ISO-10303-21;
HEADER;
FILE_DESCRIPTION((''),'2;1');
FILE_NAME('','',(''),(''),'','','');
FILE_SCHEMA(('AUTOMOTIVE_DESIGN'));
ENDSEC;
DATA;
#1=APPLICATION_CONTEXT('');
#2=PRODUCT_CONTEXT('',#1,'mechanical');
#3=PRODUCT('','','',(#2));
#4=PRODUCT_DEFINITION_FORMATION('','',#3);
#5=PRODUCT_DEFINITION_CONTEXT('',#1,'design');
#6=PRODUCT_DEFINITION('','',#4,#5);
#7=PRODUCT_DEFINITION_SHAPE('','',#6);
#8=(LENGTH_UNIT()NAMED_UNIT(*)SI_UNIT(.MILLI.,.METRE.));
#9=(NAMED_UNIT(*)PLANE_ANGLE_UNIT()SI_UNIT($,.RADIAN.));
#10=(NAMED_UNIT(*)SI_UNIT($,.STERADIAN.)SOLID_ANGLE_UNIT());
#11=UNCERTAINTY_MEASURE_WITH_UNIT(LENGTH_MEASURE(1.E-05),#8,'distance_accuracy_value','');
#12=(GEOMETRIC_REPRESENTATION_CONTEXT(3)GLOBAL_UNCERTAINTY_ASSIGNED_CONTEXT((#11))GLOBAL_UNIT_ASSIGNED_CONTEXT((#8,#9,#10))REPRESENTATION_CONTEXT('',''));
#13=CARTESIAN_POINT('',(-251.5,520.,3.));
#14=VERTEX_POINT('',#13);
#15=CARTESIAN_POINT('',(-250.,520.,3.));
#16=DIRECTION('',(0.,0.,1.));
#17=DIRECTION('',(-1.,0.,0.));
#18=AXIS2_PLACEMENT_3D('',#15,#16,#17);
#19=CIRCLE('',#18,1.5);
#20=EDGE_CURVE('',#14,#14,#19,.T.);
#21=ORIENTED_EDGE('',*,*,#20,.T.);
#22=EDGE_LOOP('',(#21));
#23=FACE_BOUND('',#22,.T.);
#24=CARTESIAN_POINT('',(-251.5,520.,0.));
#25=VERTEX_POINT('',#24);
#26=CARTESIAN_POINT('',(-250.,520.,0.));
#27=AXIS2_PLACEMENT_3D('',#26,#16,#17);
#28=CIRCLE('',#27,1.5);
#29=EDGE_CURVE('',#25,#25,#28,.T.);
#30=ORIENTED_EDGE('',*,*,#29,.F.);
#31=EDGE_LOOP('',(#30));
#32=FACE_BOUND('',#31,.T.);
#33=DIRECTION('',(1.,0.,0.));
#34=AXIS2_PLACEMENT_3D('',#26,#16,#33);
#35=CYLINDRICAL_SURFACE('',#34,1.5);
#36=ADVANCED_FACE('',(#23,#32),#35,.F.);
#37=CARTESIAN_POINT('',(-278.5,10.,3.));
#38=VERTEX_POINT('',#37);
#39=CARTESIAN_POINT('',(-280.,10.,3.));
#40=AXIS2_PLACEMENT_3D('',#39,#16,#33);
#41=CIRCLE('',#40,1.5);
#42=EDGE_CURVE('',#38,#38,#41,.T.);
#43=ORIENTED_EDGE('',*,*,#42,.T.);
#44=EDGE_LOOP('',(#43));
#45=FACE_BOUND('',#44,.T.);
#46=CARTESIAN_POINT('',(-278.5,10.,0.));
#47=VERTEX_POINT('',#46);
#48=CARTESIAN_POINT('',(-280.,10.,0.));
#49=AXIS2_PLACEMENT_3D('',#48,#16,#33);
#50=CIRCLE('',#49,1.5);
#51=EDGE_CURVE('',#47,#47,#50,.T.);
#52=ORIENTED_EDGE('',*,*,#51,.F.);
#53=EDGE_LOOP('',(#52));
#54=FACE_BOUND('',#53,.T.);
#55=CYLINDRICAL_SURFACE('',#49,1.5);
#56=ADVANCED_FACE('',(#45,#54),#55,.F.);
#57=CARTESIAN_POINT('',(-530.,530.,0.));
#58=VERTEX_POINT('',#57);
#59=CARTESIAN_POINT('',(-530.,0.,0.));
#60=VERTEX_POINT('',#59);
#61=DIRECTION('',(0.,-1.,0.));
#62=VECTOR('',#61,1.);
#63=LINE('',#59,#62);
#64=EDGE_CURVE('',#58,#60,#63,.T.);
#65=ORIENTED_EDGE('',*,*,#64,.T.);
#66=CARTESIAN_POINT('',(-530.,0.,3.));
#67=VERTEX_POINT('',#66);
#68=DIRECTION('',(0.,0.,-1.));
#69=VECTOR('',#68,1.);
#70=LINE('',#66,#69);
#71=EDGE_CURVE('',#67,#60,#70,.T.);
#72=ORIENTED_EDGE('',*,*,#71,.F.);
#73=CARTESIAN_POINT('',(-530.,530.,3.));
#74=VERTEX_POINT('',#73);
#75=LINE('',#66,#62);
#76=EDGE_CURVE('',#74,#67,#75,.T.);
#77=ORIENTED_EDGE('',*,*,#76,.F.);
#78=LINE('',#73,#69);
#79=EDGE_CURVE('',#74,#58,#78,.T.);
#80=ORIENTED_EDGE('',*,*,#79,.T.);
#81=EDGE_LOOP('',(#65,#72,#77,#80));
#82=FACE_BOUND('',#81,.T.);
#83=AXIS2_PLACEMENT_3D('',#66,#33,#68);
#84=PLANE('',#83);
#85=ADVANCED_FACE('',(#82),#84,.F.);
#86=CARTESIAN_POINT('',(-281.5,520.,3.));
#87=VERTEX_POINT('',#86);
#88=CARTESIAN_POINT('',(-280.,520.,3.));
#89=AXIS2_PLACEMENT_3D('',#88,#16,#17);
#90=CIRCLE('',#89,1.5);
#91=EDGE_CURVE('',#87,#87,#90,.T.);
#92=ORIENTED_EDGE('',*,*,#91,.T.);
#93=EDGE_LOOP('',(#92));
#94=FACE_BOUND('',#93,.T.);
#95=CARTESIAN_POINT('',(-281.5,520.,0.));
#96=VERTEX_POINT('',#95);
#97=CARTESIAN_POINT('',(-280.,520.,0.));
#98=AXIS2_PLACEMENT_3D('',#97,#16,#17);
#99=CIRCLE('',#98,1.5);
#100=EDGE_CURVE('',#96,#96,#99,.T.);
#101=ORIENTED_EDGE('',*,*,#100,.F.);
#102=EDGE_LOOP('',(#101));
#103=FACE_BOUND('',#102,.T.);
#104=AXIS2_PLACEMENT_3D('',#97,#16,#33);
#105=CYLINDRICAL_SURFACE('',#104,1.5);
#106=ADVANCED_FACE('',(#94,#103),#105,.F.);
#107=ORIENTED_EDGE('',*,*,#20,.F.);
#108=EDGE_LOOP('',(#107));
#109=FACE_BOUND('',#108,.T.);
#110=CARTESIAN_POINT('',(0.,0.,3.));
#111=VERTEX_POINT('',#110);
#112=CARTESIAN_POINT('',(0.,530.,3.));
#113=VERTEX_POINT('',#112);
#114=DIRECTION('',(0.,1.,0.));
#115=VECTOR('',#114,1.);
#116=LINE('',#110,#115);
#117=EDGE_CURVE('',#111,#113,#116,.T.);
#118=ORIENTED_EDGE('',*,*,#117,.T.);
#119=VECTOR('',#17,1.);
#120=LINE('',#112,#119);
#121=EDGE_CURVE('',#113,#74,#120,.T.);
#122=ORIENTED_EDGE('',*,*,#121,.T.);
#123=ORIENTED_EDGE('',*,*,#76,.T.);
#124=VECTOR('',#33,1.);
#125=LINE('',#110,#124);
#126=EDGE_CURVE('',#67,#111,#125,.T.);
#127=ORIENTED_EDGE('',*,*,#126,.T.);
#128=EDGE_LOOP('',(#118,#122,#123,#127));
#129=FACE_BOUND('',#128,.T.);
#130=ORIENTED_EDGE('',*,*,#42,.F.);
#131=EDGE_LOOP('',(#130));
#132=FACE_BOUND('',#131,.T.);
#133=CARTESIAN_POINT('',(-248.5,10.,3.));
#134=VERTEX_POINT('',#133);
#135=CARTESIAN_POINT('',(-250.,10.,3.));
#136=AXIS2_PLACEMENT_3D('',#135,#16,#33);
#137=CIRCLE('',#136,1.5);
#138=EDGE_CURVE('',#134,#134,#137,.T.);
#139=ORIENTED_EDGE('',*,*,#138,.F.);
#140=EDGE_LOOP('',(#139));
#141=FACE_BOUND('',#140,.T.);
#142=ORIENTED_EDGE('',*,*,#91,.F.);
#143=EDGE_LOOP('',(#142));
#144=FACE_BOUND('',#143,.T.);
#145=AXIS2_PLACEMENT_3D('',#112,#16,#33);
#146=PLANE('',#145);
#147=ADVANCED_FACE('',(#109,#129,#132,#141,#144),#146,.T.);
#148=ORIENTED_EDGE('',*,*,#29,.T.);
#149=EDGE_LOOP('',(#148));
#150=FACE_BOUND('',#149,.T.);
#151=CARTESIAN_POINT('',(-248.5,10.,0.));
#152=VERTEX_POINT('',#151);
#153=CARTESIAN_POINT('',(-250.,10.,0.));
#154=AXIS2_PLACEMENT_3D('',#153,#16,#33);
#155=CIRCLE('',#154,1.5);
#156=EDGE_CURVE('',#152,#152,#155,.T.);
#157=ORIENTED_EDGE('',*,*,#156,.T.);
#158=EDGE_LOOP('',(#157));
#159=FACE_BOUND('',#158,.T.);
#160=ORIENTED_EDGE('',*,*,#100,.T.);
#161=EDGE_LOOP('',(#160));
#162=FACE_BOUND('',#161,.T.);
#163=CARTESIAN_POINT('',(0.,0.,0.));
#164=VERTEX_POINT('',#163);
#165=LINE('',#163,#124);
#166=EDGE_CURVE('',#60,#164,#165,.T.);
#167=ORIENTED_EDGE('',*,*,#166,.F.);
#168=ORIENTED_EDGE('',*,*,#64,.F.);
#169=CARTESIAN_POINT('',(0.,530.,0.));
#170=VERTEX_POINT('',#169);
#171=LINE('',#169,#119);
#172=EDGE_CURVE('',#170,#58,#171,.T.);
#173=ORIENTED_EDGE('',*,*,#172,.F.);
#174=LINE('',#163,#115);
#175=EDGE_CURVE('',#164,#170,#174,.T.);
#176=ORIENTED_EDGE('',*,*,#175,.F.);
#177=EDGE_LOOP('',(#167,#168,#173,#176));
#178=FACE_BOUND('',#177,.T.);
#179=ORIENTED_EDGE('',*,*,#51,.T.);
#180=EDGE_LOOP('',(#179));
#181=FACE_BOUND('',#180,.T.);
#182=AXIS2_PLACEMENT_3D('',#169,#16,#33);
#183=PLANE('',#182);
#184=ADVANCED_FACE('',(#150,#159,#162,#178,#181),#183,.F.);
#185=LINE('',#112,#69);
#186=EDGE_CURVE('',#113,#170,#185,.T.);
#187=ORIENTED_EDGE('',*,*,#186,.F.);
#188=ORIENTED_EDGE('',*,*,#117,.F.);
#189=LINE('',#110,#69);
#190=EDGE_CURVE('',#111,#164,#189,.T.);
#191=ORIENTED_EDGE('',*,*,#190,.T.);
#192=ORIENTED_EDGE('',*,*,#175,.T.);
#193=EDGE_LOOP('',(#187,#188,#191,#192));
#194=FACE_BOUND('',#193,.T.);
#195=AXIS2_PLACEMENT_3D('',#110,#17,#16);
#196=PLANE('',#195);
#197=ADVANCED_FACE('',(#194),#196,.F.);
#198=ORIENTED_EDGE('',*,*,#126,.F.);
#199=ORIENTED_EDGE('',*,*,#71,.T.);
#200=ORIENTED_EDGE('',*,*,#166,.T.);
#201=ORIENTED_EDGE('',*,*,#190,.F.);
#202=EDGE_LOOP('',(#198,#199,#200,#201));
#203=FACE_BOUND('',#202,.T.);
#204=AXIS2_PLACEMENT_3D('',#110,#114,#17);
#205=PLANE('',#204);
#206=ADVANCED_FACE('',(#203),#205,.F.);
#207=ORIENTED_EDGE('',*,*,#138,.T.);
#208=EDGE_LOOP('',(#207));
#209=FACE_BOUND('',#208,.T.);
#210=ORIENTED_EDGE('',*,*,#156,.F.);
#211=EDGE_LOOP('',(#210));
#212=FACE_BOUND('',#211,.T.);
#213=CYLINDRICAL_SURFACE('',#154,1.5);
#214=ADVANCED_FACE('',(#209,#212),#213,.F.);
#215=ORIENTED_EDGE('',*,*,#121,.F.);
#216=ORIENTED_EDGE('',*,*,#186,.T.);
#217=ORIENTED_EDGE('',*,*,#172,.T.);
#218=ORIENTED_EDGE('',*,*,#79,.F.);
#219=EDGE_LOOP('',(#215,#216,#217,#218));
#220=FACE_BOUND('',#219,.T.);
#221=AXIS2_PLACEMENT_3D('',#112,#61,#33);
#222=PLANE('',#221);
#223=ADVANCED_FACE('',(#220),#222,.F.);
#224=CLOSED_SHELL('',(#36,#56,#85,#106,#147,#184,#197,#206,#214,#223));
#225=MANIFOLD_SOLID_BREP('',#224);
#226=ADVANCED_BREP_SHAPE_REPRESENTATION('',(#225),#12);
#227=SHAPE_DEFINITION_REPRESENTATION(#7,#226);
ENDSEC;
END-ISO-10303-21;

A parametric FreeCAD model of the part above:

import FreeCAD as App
import Part
import Sketcher

V = App.Vector
Q = App.Units.Quantity

doc = App.newDocument("Part")
body = doc.addObject("PartDesign::Body", "Body")

# Sketch on XY plane
sketch1 = body.newObject("Sketcher::SketchObject", "Sketch")
sketch1.AttachmentSupport = (doc.getObject("XY_Plane"), [""])
sketch1.MapMode = "FlatFace"
sketch1.addGeometry(Part.LineSegment(V(-530, 530, 0), V(-530, 0, 0)), False)
sketch1.addGeometry(Part.LineSegment(V(-530, 0, 0), V(0, 0, 0)), False)
sketch1.addGeometry(Part.LineSegment(V(0, 0, 0), V(0, 530, 0)), False)
sketch1.addGeometry(Part.LineSegment(V(0, 530, 0), V(-530, 530, 0)), False)
sketch1.addConstraint(Sketcher.Constraint("Coincident", 0, 2, 1, 1))
sketch1.addConstraint(Sketcher.Constraint("Coincident", 1, 2, 2, 1))
sketch1.addConstraint(Sketcher.Constraint("Coincident", 2, 2, 3, 1))
sketch1.addConstraint(Sketcher.Constraint("Coincident", 3, 2, 0, 1))
sketch1.addConstraint(Sketcher.Constraint("Vertical", 0))
sketch1.addConstraint(Sketcher.Constraint("Horizontal", 1))
sketch1.addConstraint(Sketcher.Constraint("Vertical", 2))
sketch1.addConstraint(Sketcher.Constraint("Horizontal", 3))
sketch1.addConstraint(Sketcher.Constraint("Coincident", 1, 2, -1, 1))
sketch1.addConstraint(Sketcher.Constraint("Equal", 3, 0))
sketch1.addConstraint(Sketcher.Constraint("DistanceX", 1, 1, 1, 2, Q("530 mm")))
pad1 = body.newObject("PartDesign::Pad", "Pad")
pad1.Profile = sketch1
pad1.Length = 3

# Sketch on XY plane
sketch2 = body.newObject("Sketcher::SketchObject", "Sketch001")
sketch2.AttachmentSupport = (doc.getObject("XY_Plane"), [""])
sketch2.MapMode = "FlatFace"
sketch2.AttachmentOffset = App.Placement(V(0, 0, 3), App.Rotation())
sketch2.addGeometry(Part.Circle(V(-250, 520, 0), V(0, 0, 1), 1.5), False)
sketch2.addGeometry(Part.Circle(V(-280, 520, 0), V(0, 0, 1), 1.5), False)
sketch2.addGeometry(Part.Circle(V(-250, 10, 0), V(0, 0, 1), 1.5), False)
sketch2.addGeometry(Part.Circle(V(-280, 10, 0), V(0, 0, 1), 1.5), False)
sketch2.addConstraint(Sketcher.Constraint("Equal", 0, 1))
sketch2.addConstraint(Sketcher.Constraint("Equal", 1, 2))
sketch2.addConstraint(Sketcher.Constraint("Equal", 2, 3))
sketch2.addConstraint(Sketcher.Constraint("Horizontal", 0, 3, 1, 3))
sketch2.addConstraint(Sketcher.Constraint("Horizontal", 2, 3, 3, 3))
sketch2.addConstraint(Sketcher.Constraint("Vertical", 0, 3, 2, 3))
sketch2.addConstraint(Sketcher.Constraint("Vertical", 1, 3, 3, 3))
sketch2.addConstraint(Sketcher.Constraint("Diameter", 0, Q("3 mm")))
sketch2.addConstraint(Sketcher.Constraint("DistanceX", 0, 3, -1, 1, Q("250 mm")))
sketch2.addConstraint(Sketcher.Constraint("DistanceY", -1, 1, 0, 3, Q("520 mm")))
sketch2.addConstraint(Sketcher.Constraint("DistanceX", 1, 3, -1, 1, Q("280 mm")))
sketch2.addConstraint(Sketcher.Constraint("DistanceY", -1, 1, 2, 3, Q("10 mm")))
pocket1 = body.newObject("PartDesign::Pocket", "Pocket")
pocket1.Profile = sketch2
pocket1.Length = 3

doc.recompute()
